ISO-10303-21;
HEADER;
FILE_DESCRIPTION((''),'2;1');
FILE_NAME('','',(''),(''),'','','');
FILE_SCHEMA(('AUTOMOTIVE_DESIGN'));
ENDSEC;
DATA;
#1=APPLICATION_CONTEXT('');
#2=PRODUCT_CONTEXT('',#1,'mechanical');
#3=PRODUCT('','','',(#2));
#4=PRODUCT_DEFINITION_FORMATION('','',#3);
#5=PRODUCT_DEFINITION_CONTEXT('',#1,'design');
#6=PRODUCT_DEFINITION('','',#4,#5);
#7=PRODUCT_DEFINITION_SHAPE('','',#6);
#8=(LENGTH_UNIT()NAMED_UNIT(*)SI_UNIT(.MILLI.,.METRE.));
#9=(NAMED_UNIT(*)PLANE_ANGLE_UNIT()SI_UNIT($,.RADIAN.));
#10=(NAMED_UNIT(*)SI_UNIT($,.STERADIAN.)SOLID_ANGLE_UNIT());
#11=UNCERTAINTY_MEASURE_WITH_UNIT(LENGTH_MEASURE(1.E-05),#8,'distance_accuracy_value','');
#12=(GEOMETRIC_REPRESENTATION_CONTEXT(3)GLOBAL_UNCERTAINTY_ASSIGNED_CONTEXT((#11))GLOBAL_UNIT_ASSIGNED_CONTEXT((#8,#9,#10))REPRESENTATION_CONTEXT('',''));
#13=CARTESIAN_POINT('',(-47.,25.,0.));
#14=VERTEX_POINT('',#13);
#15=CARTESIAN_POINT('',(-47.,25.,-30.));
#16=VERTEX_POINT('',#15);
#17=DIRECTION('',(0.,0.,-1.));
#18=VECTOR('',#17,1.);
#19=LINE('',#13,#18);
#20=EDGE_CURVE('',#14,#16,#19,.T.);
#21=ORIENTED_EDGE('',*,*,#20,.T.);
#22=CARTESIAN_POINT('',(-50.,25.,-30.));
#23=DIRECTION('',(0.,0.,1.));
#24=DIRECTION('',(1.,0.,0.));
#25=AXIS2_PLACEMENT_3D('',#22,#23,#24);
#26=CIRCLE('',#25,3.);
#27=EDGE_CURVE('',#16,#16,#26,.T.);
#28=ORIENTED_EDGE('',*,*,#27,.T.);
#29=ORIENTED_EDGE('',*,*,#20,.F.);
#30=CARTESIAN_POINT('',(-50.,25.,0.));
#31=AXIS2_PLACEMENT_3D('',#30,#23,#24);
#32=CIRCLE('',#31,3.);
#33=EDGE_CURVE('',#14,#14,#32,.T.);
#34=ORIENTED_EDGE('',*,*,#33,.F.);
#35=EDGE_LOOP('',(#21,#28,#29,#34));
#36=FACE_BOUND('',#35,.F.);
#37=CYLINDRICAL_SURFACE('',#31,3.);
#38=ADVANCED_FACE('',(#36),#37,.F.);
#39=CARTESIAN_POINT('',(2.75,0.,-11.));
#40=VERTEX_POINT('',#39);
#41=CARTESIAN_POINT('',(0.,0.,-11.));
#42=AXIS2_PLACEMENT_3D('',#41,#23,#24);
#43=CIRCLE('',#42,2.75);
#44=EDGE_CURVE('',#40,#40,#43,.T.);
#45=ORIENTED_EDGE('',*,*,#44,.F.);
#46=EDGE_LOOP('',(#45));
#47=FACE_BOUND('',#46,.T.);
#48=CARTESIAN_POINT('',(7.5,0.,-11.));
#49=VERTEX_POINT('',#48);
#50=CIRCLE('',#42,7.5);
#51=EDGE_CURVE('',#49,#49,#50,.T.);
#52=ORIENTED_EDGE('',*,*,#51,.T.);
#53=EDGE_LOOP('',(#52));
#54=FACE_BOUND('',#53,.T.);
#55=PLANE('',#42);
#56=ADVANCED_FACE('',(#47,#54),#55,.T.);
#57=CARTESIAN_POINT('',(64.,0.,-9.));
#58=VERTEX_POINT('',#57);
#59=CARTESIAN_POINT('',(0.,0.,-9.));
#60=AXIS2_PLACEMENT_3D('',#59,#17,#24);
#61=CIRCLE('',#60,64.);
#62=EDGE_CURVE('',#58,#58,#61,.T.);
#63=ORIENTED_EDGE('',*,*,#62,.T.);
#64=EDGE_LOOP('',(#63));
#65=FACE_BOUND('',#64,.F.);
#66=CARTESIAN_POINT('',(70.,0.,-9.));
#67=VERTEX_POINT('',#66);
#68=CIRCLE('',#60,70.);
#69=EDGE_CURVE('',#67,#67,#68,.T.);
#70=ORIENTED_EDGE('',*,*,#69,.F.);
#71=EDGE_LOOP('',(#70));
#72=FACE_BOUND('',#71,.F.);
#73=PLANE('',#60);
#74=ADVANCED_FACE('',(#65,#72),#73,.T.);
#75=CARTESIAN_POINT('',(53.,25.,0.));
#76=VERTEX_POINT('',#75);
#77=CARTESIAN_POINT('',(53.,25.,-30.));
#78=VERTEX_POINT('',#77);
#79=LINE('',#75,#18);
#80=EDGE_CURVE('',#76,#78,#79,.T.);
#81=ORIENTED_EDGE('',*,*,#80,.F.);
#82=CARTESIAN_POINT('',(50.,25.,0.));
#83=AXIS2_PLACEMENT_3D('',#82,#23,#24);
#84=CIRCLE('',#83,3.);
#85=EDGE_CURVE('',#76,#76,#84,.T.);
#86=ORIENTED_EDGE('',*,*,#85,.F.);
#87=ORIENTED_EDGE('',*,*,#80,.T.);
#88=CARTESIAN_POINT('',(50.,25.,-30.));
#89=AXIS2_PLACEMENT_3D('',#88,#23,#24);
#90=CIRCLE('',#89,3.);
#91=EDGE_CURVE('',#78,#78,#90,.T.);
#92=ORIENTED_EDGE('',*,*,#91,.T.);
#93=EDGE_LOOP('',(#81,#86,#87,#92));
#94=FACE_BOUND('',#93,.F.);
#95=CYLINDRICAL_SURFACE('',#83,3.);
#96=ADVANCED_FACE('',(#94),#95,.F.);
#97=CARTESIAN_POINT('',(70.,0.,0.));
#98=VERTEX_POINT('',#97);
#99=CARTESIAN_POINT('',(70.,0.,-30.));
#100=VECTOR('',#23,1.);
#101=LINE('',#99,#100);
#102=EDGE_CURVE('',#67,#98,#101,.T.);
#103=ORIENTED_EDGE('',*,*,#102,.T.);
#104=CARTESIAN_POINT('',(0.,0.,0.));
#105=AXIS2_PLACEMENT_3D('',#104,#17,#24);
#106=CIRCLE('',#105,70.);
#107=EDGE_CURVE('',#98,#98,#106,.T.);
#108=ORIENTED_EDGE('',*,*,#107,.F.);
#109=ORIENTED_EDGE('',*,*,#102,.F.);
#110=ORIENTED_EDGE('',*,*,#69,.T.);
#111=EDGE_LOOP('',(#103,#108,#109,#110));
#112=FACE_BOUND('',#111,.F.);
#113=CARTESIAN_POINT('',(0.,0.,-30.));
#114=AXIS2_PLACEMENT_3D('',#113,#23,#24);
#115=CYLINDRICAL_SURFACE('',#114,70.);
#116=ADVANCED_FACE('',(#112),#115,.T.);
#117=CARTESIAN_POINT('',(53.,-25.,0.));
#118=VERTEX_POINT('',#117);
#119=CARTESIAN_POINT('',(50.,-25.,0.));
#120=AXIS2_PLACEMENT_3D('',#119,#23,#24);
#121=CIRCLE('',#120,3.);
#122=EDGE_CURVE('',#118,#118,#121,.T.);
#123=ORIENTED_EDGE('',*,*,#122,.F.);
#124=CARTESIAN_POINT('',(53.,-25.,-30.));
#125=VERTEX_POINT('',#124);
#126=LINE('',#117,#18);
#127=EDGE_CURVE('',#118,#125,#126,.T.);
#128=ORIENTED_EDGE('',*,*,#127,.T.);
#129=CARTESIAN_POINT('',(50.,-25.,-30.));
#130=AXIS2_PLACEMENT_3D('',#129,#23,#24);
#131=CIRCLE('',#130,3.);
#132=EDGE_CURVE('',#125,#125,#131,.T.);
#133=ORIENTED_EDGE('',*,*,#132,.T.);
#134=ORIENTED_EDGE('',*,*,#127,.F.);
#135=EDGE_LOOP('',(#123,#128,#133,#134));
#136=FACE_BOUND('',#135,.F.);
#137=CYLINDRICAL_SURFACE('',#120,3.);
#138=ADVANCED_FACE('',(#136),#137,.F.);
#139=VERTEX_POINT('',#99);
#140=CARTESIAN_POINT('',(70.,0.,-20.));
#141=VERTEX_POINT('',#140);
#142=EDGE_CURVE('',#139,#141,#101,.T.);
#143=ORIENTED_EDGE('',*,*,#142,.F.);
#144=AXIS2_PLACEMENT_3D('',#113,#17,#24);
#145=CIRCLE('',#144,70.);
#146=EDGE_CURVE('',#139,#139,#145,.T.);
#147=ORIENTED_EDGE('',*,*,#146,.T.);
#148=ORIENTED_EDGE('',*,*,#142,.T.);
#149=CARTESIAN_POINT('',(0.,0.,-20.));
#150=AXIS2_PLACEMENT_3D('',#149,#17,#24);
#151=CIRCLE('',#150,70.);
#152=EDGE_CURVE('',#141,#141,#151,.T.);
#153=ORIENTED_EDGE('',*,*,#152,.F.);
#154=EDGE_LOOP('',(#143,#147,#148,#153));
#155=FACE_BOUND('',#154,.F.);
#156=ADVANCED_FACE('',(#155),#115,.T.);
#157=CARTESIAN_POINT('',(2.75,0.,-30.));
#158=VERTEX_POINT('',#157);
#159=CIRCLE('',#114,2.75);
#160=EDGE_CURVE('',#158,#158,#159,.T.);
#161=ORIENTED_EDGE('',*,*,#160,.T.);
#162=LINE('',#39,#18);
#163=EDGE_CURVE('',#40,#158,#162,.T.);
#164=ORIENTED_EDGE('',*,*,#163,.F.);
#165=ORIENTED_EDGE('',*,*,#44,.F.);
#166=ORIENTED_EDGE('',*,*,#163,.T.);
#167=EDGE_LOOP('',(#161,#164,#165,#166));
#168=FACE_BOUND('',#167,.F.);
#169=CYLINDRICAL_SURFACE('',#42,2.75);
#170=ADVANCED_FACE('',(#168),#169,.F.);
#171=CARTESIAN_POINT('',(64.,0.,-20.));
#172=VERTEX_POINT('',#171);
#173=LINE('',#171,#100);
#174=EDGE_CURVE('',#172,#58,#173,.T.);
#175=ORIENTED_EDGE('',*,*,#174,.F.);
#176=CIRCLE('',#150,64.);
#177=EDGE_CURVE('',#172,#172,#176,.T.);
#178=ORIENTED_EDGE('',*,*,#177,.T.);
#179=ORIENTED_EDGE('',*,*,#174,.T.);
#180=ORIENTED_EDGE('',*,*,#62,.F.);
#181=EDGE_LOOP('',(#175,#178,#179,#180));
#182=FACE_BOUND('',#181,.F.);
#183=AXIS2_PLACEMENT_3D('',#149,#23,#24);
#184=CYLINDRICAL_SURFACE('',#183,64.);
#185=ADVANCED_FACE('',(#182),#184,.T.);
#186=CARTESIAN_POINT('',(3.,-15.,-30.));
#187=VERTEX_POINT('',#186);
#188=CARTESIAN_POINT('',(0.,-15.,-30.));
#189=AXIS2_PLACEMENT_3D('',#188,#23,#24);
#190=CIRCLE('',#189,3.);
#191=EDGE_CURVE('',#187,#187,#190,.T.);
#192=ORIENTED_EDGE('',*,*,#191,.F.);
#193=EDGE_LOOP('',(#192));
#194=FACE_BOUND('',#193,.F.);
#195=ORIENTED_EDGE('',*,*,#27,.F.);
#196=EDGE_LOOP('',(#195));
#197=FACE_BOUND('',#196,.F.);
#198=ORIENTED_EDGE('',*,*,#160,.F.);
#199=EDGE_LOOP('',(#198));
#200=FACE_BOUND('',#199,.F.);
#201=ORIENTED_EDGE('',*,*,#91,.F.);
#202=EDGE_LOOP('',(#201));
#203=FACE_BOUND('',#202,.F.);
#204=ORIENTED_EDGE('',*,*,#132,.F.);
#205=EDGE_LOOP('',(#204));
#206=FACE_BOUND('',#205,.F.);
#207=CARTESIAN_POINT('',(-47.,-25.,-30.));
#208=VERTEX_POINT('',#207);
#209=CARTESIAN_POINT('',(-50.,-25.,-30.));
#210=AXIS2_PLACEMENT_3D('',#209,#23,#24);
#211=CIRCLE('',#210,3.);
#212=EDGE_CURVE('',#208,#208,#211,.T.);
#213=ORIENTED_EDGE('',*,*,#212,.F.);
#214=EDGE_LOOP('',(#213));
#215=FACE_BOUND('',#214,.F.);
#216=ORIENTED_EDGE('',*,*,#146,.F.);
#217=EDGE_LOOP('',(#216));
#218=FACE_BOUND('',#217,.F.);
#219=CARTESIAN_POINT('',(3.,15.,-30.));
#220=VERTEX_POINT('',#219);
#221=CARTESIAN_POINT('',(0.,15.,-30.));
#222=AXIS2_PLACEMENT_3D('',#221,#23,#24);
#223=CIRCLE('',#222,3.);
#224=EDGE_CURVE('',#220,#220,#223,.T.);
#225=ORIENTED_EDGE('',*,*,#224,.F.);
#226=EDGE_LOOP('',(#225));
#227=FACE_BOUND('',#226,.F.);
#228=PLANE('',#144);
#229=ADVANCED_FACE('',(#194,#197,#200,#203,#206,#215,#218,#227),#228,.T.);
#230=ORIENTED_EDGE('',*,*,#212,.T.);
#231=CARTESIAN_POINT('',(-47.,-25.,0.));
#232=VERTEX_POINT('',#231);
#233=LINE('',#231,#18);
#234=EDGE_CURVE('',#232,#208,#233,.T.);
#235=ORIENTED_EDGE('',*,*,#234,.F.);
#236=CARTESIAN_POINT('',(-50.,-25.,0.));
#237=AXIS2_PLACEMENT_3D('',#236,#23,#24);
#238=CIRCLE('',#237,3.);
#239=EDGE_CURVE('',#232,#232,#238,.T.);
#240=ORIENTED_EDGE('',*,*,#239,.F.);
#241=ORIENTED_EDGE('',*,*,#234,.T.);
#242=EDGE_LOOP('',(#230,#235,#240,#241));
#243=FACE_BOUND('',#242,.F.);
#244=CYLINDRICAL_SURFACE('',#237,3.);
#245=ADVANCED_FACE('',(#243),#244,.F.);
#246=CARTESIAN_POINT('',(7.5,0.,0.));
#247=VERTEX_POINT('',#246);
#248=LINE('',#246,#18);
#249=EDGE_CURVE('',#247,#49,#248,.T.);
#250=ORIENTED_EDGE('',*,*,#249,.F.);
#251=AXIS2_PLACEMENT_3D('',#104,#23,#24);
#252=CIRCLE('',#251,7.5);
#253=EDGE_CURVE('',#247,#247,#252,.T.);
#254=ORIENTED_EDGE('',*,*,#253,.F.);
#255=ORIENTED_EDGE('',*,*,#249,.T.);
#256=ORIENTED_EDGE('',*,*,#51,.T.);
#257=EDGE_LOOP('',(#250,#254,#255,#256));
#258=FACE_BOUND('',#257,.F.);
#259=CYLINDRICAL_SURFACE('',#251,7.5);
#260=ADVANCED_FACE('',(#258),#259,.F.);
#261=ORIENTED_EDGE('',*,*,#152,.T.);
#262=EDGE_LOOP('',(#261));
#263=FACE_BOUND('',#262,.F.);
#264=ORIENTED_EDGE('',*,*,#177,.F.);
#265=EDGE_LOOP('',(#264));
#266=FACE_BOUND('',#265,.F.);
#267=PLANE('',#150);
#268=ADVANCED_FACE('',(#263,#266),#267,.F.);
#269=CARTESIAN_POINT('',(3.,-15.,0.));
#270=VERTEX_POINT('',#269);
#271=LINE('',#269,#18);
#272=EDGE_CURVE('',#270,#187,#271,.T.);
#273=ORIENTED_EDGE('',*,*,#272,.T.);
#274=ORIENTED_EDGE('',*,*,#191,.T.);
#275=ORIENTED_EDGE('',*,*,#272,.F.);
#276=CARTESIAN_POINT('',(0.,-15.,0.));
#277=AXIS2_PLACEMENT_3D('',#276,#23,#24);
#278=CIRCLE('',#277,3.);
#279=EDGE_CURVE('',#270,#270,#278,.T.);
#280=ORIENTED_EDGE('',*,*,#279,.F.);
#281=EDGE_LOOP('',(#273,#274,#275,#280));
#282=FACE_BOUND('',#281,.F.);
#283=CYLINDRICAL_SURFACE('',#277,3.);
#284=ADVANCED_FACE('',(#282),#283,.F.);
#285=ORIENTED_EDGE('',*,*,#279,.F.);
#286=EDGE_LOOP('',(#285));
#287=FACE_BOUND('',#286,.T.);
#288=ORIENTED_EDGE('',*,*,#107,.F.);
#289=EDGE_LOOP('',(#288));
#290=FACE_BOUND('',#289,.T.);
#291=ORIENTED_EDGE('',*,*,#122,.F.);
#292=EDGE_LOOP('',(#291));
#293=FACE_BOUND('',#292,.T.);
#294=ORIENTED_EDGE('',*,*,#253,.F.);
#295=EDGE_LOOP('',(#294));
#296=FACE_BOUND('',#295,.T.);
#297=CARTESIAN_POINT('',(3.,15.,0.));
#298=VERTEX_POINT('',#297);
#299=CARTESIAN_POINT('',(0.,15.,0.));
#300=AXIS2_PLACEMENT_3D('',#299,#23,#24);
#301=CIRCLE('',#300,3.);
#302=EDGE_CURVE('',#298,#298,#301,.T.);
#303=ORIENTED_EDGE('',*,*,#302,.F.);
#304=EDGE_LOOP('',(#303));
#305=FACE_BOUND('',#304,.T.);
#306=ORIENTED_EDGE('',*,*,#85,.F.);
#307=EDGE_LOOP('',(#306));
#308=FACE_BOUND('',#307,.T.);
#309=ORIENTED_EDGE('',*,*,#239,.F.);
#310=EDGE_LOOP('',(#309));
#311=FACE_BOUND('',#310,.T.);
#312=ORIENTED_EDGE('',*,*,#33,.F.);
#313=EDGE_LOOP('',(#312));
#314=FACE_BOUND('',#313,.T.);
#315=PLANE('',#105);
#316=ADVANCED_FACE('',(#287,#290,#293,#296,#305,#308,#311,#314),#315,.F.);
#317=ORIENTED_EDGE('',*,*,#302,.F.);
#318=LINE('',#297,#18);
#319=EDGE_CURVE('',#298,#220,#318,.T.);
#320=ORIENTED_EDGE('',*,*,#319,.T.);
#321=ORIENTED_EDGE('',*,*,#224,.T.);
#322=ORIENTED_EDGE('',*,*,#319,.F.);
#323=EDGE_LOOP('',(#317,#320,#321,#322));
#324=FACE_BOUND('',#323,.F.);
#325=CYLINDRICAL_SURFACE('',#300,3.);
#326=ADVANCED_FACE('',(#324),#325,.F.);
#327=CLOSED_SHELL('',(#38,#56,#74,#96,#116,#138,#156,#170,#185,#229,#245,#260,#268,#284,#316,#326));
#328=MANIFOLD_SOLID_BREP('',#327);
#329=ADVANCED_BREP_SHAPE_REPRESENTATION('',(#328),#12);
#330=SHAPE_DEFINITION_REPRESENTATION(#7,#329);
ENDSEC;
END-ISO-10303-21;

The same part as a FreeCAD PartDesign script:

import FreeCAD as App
import Part
import Sketcher


def add_polygon(sketch, points):
    """Adds a closed chain of lines whose ends are joined by coincident constraints."""
    first, n = sketch.GeometryCount, len(points)
    for a, b in zip(points, points[1:] + points[:1]):
        sketch.addGeometry(Part.LineSegment(App.Vector(*a, 0), App.Vector(*b, 0)), False)
    for i in range(n):
        sketch.addConstraint(Sketcher.Constraint("Coincident", first + i, 2, first + (i + 1) % n, 1))

doc = App.newDocument("Part")
body = doc.addObject("PartDesign::Body", "Body")

# Sketch on XZ plane
sketch1 = body.newObject("Sketcher::SketchObject", "Sketch")
sketch1.AttachmentSupport = (doc.getObject("XZ_Plane"), [""])
sketch1.MapMode = "FlatFace"
add_polygon(sketch1, [(0, -30), (0, 0), (70, 0), (70, -9), (64, -9), (64, -20), (70, -20), (70, -30)])  # lines 0-7
sketch1.addConstraint(Sketcher.Constraint("Vertical", 0))
sketch1.addConstraint(Sketcher.Constraint("Horizontal", 1))
sketch1.addConstraint(Sketcher.Constraint("Vertical", 2))
sketch1.addConstraint(Sketcher.Constraint("Horizontal", 3))
sketch1.addConstraint(Sketcher.Constraint("Vertical", 4))
sketch1.addConstraint(Sketcher.Constraint("Horizontal", 5))
sketch1.addConstraint(Sketcher.Constraint("Vertical", 6))
sketch1.addConstraint(Sketcher.Constraint("Horizontal", 7))
sketch1.addConstraint(Sketcher.Constraint("Coincident", 0, 2, -1, 1))
sketch1.addConstraint(Sketcher.Constraint("Vertical", 2, 2, 5, 2))
sketch1.addConstraint(Sketcher.Constraint("DistanceX", 3, 2, 3, 1, 6.0))
sketch1.addConstraint(Sketcher.Constraint("DistanceY", 0, 1, 0, 2, 30.0))
sketch1.addConstraint(Sketcher.Constraint("DistanceY", 4, 2, 4, 1, 11.0))
sketch1.addConstraint(Sketcher.Constraint("DistanceY", 6, 2, 6, 1, 10.0))
sketch1.addConstraint(Sketcher.Constraint("DistanceX", 1, 1, 1, 2, 70.0))
revolution = body.newObject("PartDesign::Revolution", "Revolution")
revolution.Profile = sketch1
revolution.ReferenceAxis = (sketch1, ["V_Axis"])
revolution.Angle = 360

# Sketch on XY plane
sketch2 = body.newObject("Sketcher::SketchObject", "Sketch001")
sketch2.AttachmentSupport = (doc.getObject("XY_Plane"), [""])
sketch2.MapMode = "FlatFace"
sketch2.addGeometry(Part.Circle(App.Vector(50, 25, 0), App.Vector(0, 0, 1), 3), False)
sketch2.addGeometry(Part.Circle(App.Vector(-50, -25, 0), App.Vector(0, 0, 1), 3), False)
sketch2.addGeometry(Part.Circle(App.Vector(0, 15, 0), App.Vector(0, 0, 1), 3), False)
sketch2.addGeometry(Part.Circle(App.Vector(50, -25, 0), App.Vector(0, 0, 1), 3), False)
sketch2.addGeometry(Part.Circle(App.Vector(0, -15, 0), App.Vector(0, 0, 1), 3), False)
sketch2.addGeometry(Part.Circle(App.Vector(-50, 25, 0), App.Vector(0, 0, 1), 3), False)
sketch2.addConstraint(Sketcher.Constraint("Equal", 0, 1))
sketch2.addConstraint(Sketcher.Constraint("Equal", 1, 2))
sketch2.addConstraint(Sketcher.Constraint("Equal", 2, 3))
sketch2.addConstraint(Sketcher.Constraint("Equal", 3, 4))
sketch2.addConstraint(Sketcher.Constraint("Equal", 4, 5))
sketch2.addConstraint(Sketcher.Constraint("Symmetric", 0, 3, 1, 3, -1, 1))
sketch2.addConstraint(Sketcher.Constraint("Symmetric", 2, 3, 4, 3, -1, 1))
sketch2.addConstraint(Sketcher.Constraint("Symmetric", 3, 3, 5, 3, -1, 1))
sketch2.addConstraint(Sketcher.Constraint("Symmetric", 1, 3, 3, 3, -2))
sketch2.addConstraint(Sketcher.Constraint("PointOnObject", 2, 3, -2))
sketch2.addConstraint(Sketcher.Constraint("Diameter", 0, 6.0))
sketch2.addConstraint(Sketcher.Constraint("DistanceX", -1, 1, 0, 3, 50.0))
sketch2.addConstraint(Sketcher.Constraint("DistanceY", -1, 1, 0, 3, 25.0))
sketch2.addConstraint(Sketcher.Constraint("DistanceY", -1, 1, 2, 3, 15.0))
pocket1 = body.newObject("PartDesign::Pocket", "Pocket")
pocket1.Profile = sketch2
pocket1.Type = "ThroughAll"

# Sketch on XY plane
sketch3 = body.newObject("Sketcher::SketchObject", "Sketch002")
sketch3.AttachmentSupport = (doc.getObject("XY_Plane"), [""])
sketch3.MapMode = "FlatFace"
sketch3.addGeometry(Part.Circle(App.Vector(0, 0, 0), App.Vector(0, 0, 1), 8), False)
sketch3.addConstraint(Sketcher.Constraint("Coincident", 0, 3, -1, 1))
sketch3.addConstraint(Sketcher.Constraint("Diameter", 0, 15.0))
pocket2 = body.newObject("PartDesign::Pocket", "Pocket001")
pocket2.Profile = sketch3
pocket2.Length = 11

# Sketch on XY plane
sketch4 = body.newObject("Sketcher::SketchObject", "Sketch003")
sketch4.AttachmentSupport = (doc.getObject("XY_Plane"), [""])
sketch4.MapMode = "FlatFace"
sketch4.AttachmentOffset = App.Placement(App.Vector(0, 0, -11), App.Rotation())
sketch4.addGeometry(Part.Circle(App.Vector(0, 0, 0), App.Vector(0, 0, 1), 2.8), False)
sketch4.addConstraint(Sketcher.Constraint("Coincident", 0, 3, -1, 1))
sketch4.addConstraint(Sketcher.Constraint("Diameter", 0, 5.5))
pocket3 = body.newObject("PartDesign::Pocket", "Pocket002")
pocket3.Profile = sketch4
pocket3.Type = "ThroughAll"

doc.recompute()
